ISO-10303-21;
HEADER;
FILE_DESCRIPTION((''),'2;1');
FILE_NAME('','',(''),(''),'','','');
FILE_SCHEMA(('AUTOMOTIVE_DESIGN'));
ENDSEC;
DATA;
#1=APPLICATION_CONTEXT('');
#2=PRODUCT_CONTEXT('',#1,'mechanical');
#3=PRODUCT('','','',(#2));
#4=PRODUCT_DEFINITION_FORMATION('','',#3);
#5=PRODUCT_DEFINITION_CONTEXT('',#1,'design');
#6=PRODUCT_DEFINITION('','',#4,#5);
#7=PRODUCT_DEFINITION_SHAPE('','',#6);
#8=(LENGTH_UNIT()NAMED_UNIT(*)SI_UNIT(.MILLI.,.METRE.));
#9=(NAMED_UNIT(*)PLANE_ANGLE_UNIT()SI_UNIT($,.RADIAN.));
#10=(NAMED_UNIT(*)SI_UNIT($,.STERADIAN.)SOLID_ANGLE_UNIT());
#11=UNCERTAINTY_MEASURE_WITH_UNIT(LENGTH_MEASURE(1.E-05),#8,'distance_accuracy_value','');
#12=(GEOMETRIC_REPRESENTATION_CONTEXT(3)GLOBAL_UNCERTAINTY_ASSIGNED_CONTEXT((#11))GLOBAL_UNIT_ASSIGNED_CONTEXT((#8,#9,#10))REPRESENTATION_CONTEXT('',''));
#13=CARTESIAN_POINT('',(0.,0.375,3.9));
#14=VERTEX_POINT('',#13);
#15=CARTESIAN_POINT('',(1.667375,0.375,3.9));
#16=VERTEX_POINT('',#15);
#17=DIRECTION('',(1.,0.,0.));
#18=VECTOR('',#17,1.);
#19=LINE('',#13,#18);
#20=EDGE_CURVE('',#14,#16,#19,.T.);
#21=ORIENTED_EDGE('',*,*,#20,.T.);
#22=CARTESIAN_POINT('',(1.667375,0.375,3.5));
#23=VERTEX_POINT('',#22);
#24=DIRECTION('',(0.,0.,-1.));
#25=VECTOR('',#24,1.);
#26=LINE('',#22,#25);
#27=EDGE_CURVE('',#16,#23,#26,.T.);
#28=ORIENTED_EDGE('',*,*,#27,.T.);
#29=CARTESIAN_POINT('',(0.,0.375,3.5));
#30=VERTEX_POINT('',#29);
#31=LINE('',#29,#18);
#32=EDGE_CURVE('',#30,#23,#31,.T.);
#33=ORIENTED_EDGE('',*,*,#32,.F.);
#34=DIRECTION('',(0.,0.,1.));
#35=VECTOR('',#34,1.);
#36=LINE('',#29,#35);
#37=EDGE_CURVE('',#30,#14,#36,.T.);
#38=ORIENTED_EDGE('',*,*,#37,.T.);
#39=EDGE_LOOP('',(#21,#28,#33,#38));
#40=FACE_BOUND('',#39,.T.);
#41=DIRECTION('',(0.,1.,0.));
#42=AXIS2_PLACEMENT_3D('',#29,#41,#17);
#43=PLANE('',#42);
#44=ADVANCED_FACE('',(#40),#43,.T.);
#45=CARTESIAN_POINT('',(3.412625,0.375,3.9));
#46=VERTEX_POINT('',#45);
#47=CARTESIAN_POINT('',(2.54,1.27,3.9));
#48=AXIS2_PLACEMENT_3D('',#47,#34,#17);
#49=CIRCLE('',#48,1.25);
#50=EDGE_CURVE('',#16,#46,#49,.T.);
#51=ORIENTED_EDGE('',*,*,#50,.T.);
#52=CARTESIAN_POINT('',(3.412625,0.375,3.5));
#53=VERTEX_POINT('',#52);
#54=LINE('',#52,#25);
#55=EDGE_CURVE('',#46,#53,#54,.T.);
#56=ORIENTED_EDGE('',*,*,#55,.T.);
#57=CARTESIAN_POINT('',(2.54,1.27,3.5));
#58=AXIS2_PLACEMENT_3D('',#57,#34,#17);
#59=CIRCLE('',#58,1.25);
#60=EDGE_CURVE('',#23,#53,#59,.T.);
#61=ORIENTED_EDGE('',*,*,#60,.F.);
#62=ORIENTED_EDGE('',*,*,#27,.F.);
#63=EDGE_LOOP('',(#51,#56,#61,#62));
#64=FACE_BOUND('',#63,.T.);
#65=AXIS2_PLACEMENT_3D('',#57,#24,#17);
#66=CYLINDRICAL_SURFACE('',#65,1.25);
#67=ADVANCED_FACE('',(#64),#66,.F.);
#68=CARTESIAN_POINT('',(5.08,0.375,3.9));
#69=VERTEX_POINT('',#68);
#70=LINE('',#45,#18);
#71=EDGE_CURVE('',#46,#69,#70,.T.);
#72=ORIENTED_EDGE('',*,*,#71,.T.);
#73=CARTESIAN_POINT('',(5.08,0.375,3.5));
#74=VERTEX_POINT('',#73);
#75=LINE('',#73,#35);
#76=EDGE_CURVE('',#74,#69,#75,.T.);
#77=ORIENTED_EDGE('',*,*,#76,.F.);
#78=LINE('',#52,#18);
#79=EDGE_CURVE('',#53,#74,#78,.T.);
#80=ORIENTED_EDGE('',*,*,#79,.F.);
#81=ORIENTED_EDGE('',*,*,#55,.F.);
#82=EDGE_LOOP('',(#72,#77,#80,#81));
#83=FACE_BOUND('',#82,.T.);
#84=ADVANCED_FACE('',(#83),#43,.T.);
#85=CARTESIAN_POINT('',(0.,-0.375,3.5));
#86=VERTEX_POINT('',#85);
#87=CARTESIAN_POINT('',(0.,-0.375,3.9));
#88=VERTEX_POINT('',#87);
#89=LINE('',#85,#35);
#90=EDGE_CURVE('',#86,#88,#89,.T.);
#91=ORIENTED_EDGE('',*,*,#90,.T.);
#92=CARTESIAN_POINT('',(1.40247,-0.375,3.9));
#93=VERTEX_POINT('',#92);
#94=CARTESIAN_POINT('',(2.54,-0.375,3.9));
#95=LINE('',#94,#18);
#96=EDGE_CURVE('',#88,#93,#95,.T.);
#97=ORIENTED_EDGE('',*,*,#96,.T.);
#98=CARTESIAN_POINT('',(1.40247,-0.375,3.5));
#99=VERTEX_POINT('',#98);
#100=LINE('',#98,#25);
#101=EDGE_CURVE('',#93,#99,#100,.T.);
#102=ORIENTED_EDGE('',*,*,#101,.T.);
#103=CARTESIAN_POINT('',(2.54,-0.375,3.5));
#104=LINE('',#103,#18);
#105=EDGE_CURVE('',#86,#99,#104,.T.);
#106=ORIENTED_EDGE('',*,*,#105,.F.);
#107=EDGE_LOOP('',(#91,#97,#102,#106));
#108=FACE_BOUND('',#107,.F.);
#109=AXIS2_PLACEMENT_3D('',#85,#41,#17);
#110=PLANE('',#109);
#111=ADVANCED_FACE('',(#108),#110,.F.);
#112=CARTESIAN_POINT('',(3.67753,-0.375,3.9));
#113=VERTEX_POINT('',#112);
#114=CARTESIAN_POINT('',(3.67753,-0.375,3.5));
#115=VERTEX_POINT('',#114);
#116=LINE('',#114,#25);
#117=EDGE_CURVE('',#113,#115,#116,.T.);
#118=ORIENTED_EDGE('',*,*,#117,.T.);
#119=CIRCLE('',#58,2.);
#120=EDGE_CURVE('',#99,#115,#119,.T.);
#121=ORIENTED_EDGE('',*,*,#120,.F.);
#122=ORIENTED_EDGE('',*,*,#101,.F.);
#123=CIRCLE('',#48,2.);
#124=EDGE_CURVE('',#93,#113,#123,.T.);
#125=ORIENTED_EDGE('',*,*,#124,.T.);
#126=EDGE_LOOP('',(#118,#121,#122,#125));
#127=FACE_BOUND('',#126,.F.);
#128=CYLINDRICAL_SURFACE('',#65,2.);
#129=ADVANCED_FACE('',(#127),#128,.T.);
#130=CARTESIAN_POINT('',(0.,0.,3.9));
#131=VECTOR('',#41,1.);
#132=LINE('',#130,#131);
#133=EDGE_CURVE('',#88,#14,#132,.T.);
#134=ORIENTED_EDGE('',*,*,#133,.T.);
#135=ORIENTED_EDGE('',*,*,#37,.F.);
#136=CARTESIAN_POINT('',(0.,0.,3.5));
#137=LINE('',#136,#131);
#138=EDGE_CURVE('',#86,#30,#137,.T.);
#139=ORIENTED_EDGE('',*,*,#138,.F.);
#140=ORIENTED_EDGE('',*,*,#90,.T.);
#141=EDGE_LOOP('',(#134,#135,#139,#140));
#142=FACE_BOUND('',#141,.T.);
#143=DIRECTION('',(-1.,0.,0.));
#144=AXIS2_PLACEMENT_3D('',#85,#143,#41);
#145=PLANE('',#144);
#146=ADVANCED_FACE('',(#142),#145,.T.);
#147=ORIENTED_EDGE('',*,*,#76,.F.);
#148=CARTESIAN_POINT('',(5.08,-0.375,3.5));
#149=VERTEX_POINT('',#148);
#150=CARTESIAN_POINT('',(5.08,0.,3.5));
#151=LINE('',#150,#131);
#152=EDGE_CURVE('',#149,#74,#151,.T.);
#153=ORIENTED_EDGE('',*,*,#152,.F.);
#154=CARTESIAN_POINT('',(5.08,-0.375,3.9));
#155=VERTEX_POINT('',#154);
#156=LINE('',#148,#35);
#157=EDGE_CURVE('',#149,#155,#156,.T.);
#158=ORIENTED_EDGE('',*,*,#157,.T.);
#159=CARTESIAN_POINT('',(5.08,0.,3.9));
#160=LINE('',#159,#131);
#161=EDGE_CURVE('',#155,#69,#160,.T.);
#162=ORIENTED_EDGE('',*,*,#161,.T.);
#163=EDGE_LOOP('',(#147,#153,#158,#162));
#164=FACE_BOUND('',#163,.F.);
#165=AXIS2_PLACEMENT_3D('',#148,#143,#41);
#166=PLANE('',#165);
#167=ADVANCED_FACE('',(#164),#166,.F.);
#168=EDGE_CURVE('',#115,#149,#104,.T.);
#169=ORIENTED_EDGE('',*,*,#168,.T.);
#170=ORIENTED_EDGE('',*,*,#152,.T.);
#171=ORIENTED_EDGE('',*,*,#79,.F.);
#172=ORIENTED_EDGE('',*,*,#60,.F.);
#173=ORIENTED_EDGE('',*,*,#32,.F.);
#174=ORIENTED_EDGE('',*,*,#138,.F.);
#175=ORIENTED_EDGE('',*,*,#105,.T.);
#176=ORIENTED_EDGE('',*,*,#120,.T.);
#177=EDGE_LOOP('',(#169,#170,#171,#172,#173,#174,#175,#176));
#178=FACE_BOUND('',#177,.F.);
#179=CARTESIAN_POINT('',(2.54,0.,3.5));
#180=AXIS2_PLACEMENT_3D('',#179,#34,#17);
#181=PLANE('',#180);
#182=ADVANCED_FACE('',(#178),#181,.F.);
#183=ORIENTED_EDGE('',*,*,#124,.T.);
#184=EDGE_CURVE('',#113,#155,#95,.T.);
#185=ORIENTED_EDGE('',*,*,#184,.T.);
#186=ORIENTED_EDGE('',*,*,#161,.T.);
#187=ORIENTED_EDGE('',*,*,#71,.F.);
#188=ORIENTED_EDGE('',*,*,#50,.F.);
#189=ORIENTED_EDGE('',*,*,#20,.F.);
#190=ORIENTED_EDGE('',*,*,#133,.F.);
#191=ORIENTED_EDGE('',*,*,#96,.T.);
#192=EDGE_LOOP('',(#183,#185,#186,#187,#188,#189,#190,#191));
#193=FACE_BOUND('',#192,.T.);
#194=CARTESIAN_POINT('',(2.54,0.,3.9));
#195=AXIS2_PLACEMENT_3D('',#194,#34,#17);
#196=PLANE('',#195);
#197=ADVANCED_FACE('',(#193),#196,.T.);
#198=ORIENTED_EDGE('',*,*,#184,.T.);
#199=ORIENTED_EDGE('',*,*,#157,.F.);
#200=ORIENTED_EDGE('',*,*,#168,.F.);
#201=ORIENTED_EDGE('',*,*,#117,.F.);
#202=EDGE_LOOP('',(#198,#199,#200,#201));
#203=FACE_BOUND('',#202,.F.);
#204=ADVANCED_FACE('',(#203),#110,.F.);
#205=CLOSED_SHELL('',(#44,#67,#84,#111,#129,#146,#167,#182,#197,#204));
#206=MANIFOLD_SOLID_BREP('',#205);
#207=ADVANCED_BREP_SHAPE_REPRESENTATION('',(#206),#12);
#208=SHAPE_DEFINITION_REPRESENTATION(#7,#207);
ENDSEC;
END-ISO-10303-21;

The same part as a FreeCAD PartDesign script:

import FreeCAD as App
import Part
import Sketcher


def add_polygon(sketch, points):
    """Adds a closed chain of lines whose ends are joined by coincident constraints."""
    first, n = sketch.GeometryCount, len(points)
    for a, b in zip(points, points[1:] + points[:1]):
        sketch.addGeometry(Part.LineSegment(App.Vector(*a, 0), App.Vector(*b, 0)), False)
    for i in range(n):
        sketch.addConstraint(Sketcher.Constraint("Coincident", first + i, 2, first + (i + 1) % n, 1))

doc = App.newDocument("Part")
params = doc.addObject("Spreadsheet::Sheet", "Params")
for row, (alias, value) in enumerate([
    ("sketch1_width", "6 mm"),
    ("sketch1_height", "4 mm"),
    ("pad1_length", "0.4 mm"),
    ("sketch2_diameter", "2.5 mm"),
    ("pad2_length", "0.4 mm"),
    ("sketch3_diameter", "4 mm"),
    ("pad3_length", "0.4 mm"),
    ("sketch4_width", "5.08 mm"),
    ("sketch4_height", "0.75 mm"),
    ("pad4_length", "0.4 mm"),
], start=1):
    params.set(f"A{row}", alias)
    params.set(f"B{row}", "=" + value)
    params.setAlias(f"B{row}", alias)

body = doc.addObject("PartDesign::Body", "Body")

# Sketch on XY plane
sketch1 = body.newObject("Sketcher::SketchObject", "Sketch")
sketch1.AttachmentSupport = (doc.getObject("XY_Plane"), [""])
sketch1.MapMode = "FlatFace"
add_polygon(sketch1, [(-3, 6.915), (-3, 2.915), (3, 2.915), (3, 6.915)])  # lines 0-3
sketch1.addConstraint([
    Sketcher.Constraint("Vertical", 0),
    Sketcher.Constraint("Horizontal", 1),
    Sketcher.Constraint("Vertical", 2),
    Sketcher.Constraint("Horizontal", 3),
    Sketcher.Constraint("DistanceX", 1, 1, 1, 2, 6.0),
    Sketcher.Constraint("DistanceY", 0, 2, 0, 1, 4.0),
    Sketcher.Constraint("DistanceX", 0, 2, -1, 1, 3.0),
    Sketcher.Constraint("DistanceY", -1, 1, 0, 2, 2.915),
])
sketch1.setExpression("Constraints[8]", "Params.sketch1_width")
sketch1.setExpression("Constraints[9]", "Params.sketch1_height")
pad1 = body.newObject("PartDesign::Pad", "Pad")
pad1.Profile = sketch1
pad1.setExpression("Length", "Params.pad1_length")
body2 = doc.addObject("PartDesign::Body", "Body001")

# Sketch on XY plane
sketch2 = body2.newObject("Sketcher::SketchObject", "Sketch001")
sketch2.AttachmentSupport = (doc.getObject("XY_Plane001"), [""])
sketch2.MapMode = "FlatFace"
sketch2.addGeometry(Part.Circle(App.Vector(0, 3.81, 0), App.Vector(0, 0, 1), 1.25), False)
sketch2.addConstraint([
    Sketcher.Constraint("PointOnObject", 0, 3, -2),
    Sketcher.Constraint("Diameter", 0, 2.5),
    Sketcher.Constraint("DistanceY", -1, 1, 0, 3, 3.81),
])
sketch2.setExpression("Constraints[1]", "Params.sketch2_diameter")
pad2 = body2.newObject("PartDesign::Pad", "Pad001")
pad2.Profile = sketch2
pad2.setExpression("Length", "Params.pad2_length")
body3 = doc.addObject("PartDesign::Body", "Body002")

# Sketch on XY plane
sketch3 = body3.newObject("Sketcher::SketchObject", "Sketch002")
sketch3.AttachmentSupport = (doc.getObject("XY_Plane002"), [""])
sketch3.MapMode = "FlatFace"
sketch3.addGeometry(Part.Circle(App.Vector(0, 3.81, 0), App.Vector(0, 0, 1), 2), False)
sketch3.addConstraint([
    Sketcher.Constraint("PointOnObject", 0, 3, -2),
    Sketcher.Constraint("Diameter", 0, 4.0),
    Sketcher.Constraint("DistanceY", -1, 1, 0, 3, 3.81),
])
sketch3.setExpression("Constraints[1]", "Params.sketch3_diameter")
pad3 = body3.newObject("PartDesign::Pad", "Pad002")
pad3.Profile = sketch3
pad3.setExpression("Length", "Params.pad3_length")
doc.recompute()

body4 = doc.addObject("PartDesign::Body", "Body003")
body4.BaseFeature = body2
boolean = body3.newObject("PartDesign::Boolean", "Boolean")
boolean.Type = "Cut"
boolean.addObjects([body4])
doc.recompute()

boolean2 = body3.newObject("PartDesign::Boolean", "Boolean001")
boolean2.Type = "Cut"
boolean2.addObjects([body])
body5 = doc.addObject("PartDesign::Body", "Body004")

# Sketch on XY plane
sketch4 = body5.newObject("Sketcher::SketchObject", "Sketch003")
sketch4.AttachmentSupport = (doc.getObject("XY_Plane004"), [""])
sketch4.MapMode = "FlatFace"
add_polygon(sketch4, [(-2.54, 2.915), (-2.54, 2.165), (2.54, 2.165), (2.54, 2.915)])  # lines 0-3
sketch4.addConstraint([
    Sketcher.Constraint("Vertical", 0),
    Sketcher.Constraint("Horizontal", 1),
    Sketcher.Constraint("Vertical", 2),
    Sketcher.Constraint("Horizontal", 3),
    Sketcher.Constraint("DistanceX", 1, 1, 1, 2, 5.08),
    Sketcher.Constraint("DistanceY", 0, 2, 0, 1, 0.75),
    Sketcher.Constraint("DistanceX", 0, 2, -1, 1, 2.54),
    Sketcher.Constraint("DistanceY", -1, 1, 0, 2, 2.165),
])
sketch4.setExpression("Constraints[8]", "Params.sketch4_width")
sketch4.setExpression("Constraints[9]", "Params.sketch4_height")
pad4 = body5.newObject("PartDesign::Pad", "Pad003")
pad4.Profile = sketch4
pad4.setExpression("Length", "Params.pad4_length")
doc.recompute()

boolean3 = body5.newObject("PartDesign::Boolean", "Boolean002")
boolean3.Type = "Cut"
boolean3.addObjects([body2])
doc.recompute()

boolean4 = body5.newObject("PartDesign::Boolean", "Boolean003")
boolean4.Type = "Fuse"
boolean4.addObjects([body3])
body6 = doc.addObject("PartDesign::Body", "Body005")
doc.recompute()

body5.Placement = App.Placement(App.Vector(2.54, -2.54, 3.5), App.Rotation(App.Vector(0, 0, 1), 0))
boolean5 = body6.newObject("PartDesign::Boolean", "Boolean004")
boolean5.Type = "Fuse"
boolean5.addObjects([body5])

doc.recompute()
